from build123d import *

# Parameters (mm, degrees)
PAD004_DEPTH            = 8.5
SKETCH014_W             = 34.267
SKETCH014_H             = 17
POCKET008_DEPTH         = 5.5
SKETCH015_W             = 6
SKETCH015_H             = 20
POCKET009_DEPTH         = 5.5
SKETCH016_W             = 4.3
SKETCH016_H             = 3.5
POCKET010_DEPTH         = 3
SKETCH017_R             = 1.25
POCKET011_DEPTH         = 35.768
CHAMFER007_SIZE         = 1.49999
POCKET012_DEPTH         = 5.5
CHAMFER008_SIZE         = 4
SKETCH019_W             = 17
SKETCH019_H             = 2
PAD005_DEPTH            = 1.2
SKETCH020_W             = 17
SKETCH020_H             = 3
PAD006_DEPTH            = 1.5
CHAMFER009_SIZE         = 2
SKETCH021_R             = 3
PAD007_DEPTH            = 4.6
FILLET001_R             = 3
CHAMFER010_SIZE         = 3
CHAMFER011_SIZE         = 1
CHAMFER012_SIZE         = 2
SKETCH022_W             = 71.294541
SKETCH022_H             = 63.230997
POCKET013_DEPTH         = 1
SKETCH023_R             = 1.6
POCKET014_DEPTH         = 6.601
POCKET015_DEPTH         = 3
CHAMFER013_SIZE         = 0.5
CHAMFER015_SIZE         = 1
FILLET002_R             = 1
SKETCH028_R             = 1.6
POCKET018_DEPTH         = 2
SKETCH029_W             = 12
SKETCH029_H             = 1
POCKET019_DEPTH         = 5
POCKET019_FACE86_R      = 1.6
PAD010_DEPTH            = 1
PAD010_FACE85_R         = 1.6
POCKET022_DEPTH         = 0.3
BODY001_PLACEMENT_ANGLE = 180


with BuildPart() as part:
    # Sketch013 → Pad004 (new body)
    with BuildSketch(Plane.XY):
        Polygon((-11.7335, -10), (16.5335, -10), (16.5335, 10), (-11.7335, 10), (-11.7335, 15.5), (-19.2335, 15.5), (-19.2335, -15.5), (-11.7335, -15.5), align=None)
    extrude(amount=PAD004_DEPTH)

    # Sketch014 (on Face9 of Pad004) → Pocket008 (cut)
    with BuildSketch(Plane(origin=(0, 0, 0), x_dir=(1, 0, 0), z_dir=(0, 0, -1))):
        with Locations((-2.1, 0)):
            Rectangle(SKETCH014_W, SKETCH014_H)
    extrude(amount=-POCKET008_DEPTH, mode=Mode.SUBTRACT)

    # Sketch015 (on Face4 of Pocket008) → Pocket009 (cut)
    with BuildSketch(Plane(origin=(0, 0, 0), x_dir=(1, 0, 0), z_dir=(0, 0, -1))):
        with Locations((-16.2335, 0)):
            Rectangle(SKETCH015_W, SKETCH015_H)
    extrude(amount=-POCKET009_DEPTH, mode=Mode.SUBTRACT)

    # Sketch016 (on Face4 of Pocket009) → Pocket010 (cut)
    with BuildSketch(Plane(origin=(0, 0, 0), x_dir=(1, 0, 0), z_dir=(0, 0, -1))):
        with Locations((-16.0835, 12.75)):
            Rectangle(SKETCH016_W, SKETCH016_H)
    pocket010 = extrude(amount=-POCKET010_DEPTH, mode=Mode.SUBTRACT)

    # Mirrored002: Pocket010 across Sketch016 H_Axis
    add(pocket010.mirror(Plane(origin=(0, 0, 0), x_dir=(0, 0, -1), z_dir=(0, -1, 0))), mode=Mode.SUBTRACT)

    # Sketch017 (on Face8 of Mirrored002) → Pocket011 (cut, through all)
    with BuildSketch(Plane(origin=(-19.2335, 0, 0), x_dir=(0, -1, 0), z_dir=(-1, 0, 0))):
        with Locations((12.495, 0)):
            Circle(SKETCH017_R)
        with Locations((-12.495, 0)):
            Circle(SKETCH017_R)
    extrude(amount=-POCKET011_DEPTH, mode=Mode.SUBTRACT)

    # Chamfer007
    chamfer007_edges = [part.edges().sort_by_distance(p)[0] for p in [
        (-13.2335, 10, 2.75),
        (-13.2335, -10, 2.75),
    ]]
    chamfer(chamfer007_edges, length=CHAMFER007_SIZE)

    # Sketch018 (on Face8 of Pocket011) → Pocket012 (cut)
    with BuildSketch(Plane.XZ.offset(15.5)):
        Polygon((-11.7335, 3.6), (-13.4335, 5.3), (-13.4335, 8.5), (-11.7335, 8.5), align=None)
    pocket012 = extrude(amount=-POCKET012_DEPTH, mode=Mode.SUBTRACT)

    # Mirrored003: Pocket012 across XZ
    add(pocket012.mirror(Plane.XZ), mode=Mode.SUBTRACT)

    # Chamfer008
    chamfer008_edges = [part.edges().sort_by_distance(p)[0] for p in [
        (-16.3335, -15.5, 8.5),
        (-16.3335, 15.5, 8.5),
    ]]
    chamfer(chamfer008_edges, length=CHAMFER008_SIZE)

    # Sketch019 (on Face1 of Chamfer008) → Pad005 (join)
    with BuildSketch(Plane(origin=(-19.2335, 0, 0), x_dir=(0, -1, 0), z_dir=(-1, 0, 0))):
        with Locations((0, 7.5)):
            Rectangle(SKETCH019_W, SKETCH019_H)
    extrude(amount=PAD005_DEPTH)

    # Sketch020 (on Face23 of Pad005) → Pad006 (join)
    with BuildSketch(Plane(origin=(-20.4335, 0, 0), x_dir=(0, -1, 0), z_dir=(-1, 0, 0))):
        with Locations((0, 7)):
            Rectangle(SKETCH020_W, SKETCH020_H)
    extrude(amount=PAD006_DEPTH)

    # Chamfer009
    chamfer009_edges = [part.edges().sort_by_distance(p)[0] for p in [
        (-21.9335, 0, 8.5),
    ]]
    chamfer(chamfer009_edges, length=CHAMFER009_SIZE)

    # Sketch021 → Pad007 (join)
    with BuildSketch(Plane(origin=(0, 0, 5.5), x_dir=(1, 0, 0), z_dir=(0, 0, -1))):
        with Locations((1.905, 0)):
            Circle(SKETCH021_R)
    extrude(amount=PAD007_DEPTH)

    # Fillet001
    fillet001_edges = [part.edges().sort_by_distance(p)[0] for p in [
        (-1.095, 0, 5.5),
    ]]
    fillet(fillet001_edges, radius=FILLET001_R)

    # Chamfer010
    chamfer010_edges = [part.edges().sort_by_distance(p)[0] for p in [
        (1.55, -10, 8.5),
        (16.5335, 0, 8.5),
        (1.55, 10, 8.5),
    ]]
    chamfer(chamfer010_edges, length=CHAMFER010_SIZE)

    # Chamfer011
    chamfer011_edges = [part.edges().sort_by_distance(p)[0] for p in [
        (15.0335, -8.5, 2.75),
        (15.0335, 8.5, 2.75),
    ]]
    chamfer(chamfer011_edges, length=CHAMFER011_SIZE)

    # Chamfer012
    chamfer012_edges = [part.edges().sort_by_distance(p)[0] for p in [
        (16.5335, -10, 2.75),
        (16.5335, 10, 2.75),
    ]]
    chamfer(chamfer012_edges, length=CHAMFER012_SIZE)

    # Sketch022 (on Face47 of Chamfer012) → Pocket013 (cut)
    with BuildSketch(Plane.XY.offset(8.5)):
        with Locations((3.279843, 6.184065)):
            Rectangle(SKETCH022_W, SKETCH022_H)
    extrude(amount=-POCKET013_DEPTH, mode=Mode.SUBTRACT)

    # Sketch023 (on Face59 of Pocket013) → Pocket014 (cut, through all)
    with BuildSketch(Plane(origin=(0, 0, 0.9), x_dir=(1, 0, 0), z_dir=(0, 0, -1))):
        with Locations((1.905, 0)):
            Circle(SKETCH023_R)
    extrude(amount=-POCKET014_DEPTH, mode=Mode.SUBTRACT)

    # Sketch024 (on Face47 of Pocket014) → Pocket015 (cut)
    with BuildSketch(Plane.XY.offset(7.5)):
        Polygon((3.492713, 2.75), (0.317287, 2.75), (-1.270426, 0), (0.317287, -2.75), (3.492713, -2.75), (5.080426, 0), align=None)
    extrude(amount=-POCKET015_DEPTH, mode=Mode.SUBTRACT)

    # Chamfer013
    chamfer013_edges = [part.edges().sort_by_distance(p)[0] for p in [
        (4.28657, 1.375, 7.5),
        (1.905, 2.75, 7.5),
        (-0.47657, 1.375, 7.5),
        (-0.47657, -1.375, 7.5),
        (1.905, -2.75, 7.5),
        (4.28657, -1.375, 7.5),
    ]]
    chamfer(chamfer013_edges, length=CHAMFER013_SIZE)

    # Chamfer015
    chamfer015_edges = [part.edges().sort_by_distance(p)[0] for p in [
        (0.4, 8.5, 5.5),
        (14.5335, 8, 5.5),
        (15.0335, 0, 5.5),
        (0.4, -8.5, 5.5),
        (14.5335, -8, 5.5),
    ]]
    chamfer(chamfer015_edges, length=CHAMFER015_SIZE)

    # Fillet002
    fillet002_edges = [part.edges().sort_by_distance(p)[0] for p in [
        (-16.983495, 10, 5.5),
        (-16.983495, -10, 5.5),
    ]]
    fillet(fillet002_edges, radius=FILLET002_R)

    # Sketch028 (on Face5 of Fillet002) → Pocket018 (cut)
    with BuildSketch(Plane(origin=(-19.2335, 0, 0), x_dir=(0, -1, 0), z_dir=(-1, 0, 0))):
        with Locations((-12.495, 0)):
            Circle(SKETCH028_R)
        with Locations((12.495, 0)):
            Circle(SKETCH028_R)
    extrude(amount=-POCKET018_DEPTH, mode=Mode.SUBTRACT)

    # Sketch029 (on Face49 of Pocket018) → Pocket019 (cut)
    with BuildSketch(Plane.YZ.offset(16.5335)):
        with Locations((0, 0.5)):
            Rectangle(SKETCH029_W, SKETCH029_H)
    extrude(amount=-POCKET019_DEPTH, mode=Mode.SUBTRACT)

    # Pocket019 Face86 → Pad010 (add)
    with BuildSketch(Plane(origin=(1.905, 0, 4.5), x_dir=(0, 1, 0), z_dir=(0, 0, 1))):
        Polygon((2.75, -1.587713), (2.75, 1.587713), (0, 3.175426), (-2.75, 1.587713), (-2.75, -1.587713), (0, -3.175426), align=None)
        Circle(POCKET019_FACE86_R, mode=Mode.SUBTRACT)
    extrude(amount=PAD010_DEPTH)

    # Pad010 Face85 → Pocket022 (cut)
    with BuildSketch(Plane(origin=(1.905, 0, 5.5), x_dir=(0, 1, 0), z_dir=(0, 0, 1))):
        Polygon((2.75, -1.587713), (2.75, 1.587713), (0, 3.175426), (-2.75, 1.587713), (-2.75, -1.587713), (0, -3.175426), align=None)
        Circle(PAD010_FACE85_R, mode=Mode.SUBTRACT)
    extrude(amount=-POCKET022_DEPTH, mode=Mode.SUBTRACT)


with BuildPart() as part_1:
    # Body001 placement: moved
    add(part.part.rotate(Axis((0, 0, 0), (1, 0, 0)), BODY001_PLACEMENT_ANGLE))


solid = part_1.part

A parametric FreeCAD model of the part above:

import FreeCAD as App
import Part
import Sketcher

V = App.Vector
Q = App.Units.Quantity


def edges_at(feature, points):
    """Names of the edges that pass closest to the given points."""
    edges = feature.Shape.Edges
    near = lambda p: min(range(len(edges)), key=lambda i: edges[i].distToShape(Part.Vertex(*p))[0])
    return sorted({f"Edge{near(p) + 1}" for p in points})

doc = App.newDocument("Part")
params = doc.addObject("Spreadsheet::Sheet", "Params")
for row, (alias, value) in enumerate([
    ("sketch1_height", "20 mm"),
    ("sketch1_height2", "31 mm"),
    ("sketch1_width", "7.5 mm"),
    ("pad1_length", "8.5 mm"),
    ("sketch2_height", "17 mm"),
    ("pocket1_length", "5.5 mm"),
    ("sketch3_width", "6 mm"),
    ("sketch3_height", "20 mm"),
    ("pocket2_length", "5.5 mm"),
    ("sketch4_width", "4.3 mm"),
    ("sketch4_height", "3.5 mm"),
    ("pocket3_length", "3 mm"),
    ("sketch5_diameter", "2.5 mm"),
    ("chamfer_size", "1.49999 mm"),
    ("sketch6_width", "1.7 mm"),
    ("sketch6_height", "4.9 mm"),
    ("pocket5_length", "5.5 mm"),
    ("chamfer2_size", "4 mm"),
    ("sketch7_width", "17 mm"),
    ("sketch7_height", "2 mm"),
    ("pad2_length", "1.2 mm"),
    ("sketch8_width", "17 mm"),
    ("sketch8_height", "3 mm"),
    ("pad3_length", "1.5 mm"),
    ("chamfer3_size", "2 mm"),
    ("sketch9_diameter", "6 mm"),
    ("pad4_length", "4.6 mm"),
    ("fillet_radius", "3 mm"),
    ("chamfer4_size", "3 mm"),
    ("chamfer5_size", "1 mm"),
    ("chamfer6_size", "2 mm"),
    ("pocket6_length", "1 mm"),
    ("sketch11_diameter", "3.2 mm"),
    ("pocket8_length", "3 mm"),
    ("chamfer7_size", "0.5 mm"),
    ("chamfer8_size", "1 mm"),
    ("fillet2_radius", "1 mm"),
    ("sketch13_diameter", "3.2 mm"),
    ("pocket9_length", "2 mm"),
    ("sketch14_width", "12 mm"),
    ("sketch14_height", "1 mm"),
    ("pocket10_length", "5 mm"),
    ("sketch15_diameter", "3.2 mm"),
    ("pad5_length", "1 mm"),
    ("sketch16_diameter", "3.2 mm"),
    ("pocket11_length", "0.3 mm"),
], start=1):
    params.set(f"A{row}", alias)
    params.set(f"B{row}", "=" + value)
    params.setAlias(f"B{row}", alias)

body = doc.addObject("PartDesign::Body", "Body")

sketch1 = doc.addObject("Sketcher::SketchObject", "Sketch")
body.addObject(sketch1)
sketch1.AttachmentSupport = (doc.XY_Plane, [""])
sketch1.MapMode = "FlatFace"
sketch1.addGeometry(Part.LineSegment(V(-12, -10, 0), V(17, -10, 0)), False)
sketch1.addGeometry(Part.LineSegment(V(17, -10, 0), V(17, 10, 0)), False)
sketch1.addGeometry(Part.LineSegment(V(17, 10, 0), V(-12, 10, 0)), False)
sketch1.addGeometry(Part.LineSegment(V(-12, 10, 0), V(-12, 16, 0)), False)
sketch1.addGeometry(Part.LineSegment(V(-12, 16, 0), V(-19, 16, 0)), False)
sketch1.addGeometry(Part.LineSegment(V(-19, 16, 0), V(-19, -16, 0)), False)
sketch1.addGeometry(Part.LineSegment(V(-19, -16, 0), V(-12, -16, 0)), False)
sketch1.addGeometry(Part.LineSegment(V(-12, -16, 0), V(-12, -10, 0)), False)
sketch1.addConstraint(Sketcher.Constraint("Coincident", 0, 2, 1, 1))
sketch1.addConstraint(Sketcher.Constraint("Coincident", 1, 2, 2, 1))
sketch1.addConstraint(Sketcher.Constraint("Coincident", 2, 2, 3, 1))
sketch1.addConstraint(Sketcher.Constraint("Coincident", 3, 2, 4, 1))
sketch1.addConstraint(Sketcher.Constraint("Coincident", 4, 2, 5, 1))
sketch1.addConstraint(Sketcher.Constraint("Coincident", 5, 2, 6, 1))
sketch1.addConstraint(Sketcher.Constraint("Coincident", 6, 2, 7, 1))
sketch1.addConstraint(Sketcher.Constraint("Coincident", 7, 2, 0, 1))
sketch1.addConstraint(Sketcher.Constraint("Horizontal", 0))
sketch1.addConstraint(Sketcher.Constraint("Vertical", 1))
sketch1.addConstraint(Sketcher.Constraint("Horizontal", 2))
sketch1.addConstraint(Sketcher.Constraint("Vertical", 3))
sketch1.addConstraint(Sketcher.Constraint("Horizontal", 4))
sketch1.addConstraint(Sketcher.Constraint("Vertical", 5))
sketch1.addConstraint(Sketcher.Constraint("Horizontal", 6))
sketch1.addConstraint(Sketcher.Constraint("Vertical", 7))
sketch1.addConstraint(Sketcher.Constraint("Symmetric", 3, 2, 6, 2, -1))
sketch1.addConstraint(Sketcher.Constraint("Equal", 3, 7))
sketch1.addConstraint(Sketcher.Constraint("DistanceY", 1, 1, 1, 2, Q("20 mm")))
sketch1.addConstraint(Sketcher.Constraint("DistanceY", 5, 2, 5, 1, Q("31 mm")))
sketch1.addConstraint(Sketcher.Constraint("DistanceX", 4, 2, 4, 1, Q("7.5 mm")))
sketch1.addConstraint(Sketcher.Constraint("DistanceX", 0, 1, 0, 2, Q("28.267 mm")))
sketch1.addConstraint(Sketcher.Constraint("DistanceX", -1, 1, 0, 2, Q("16.5335 mm")))
sketch1.setExpression("Constraints[18]", "Params.sketch1_height")
sketch1.setExpression("Constraints[19]", "Params.sketch1_height2")
sketch1.setExpression("Constraints[20]", "Params.sketch1_width")
pad1 = doc.addObject("PartDesign::Pad", "Pad")
body.addObject(pad1)
pad1.Profile = sketch1
pad1.setExpression("Length", "Params.pad1_length")

sketch2 = doc.addObject("Sketcher::SketchObject", "Sketch001")
body.addObject(sketch2)
sketch2.AttachmentSupport = (doc.XY_Plane, [""])
sketch2.MapMode = "FlatFace"
sketch2.addGeometry(Part.LineSegment(V(-19, -8, 0), V(-19, 8, 0)), False)
sketch2.addGeometry(Part.LineSegment(V(-19, 8, 0), V(15, 8, 0)), False)
sketch2.addGeometry(Part.LineSegment(V(15, 8, 0), V(15, -8, 0)), False)
sketch2.addGeometry(Part.LineSegment(V(15, -8, 0), V(-19, -8, 0)), False)
sketch2.addConstraint(Sketcher.Constraint("Coincident", 0, 2, 1, 1))
sketch2.addConstraint(Sketcher.Constraint("Coincident", 1, 2, 2, 1))
sketch2.addConstraint(Sketcher.Constraint("Coincident", 2, 2, 3, 1))
sketch2.addConstraint(Sketcher.Constraint("Coincident", 3, 2, 0, 1))
sketch2.addConstraint(Sketcher.Constraint("Vertical", 0))
sketch2.addConstraint(Sketcher.Constraint("Horizontal", 1))
sketch2.addConstraint(Sketcher.Constraint("Vertical", 2))
sketch2.addConstraint(Sketcher.Constraint("Horizontal", 3))
sketch2.addConstraint(Sketcher.Constraint("DistanceY", 0, 1, 0, 2, Q("17 mm")))
sketch2.addConstraint(Sketcher.Constraint("DistanceY", -1, 1, 0, 2, Q("8.5 mm")))
sketch2.addConstraint(Sketcher.Constraint("DistanceX", 1, 1, 1, 2, Q("34.267 mm")))
sketch2.addConstraint(Sketcher.Constraint("DistanceX", 0, 2, -1, 1, Q("19.2335 mm")))
sketch2.setExpression("Constraints[8]", "Params.sketch2_height")
pocket1 = doc.addObject("PartDesign::Pocket", "Pocket")
body.addObject(pocket1)
pocket1.Profile = sketch2
pocket1.setExpression("Length", "Params.pocket1_length")
pocket1.Reversed = True

sketch3 = doc.addObject("Sketcher::SketchObject", "Sketch002")
body.addObject(sketch3)
sketch3.AttachmentSupport = (doc.XY_Plane, [""])
sketch3.MapMode = "FlatFace"
sketch3.addGeometry(Part.LineSegment(V(-19, -10, 0), V(-19, 10, 0)), False)
sketch3.addGeometry(Part.LineSegment(V(-19, 10, 0), V(-13, 10, 0)), False)
sketch3.addGeometry(Part.LineSegment(V(-13, 10, 0), V(-13, -10, 0)), False)
sketch3.addGeometry(Part.LineSegment(V(-13, -10, 0), V(-19, -10, 0)), False)
sketch3.addConstraint(Sketcher.Constraint("Coincident", 0, 2, 1, 1))
sketch3.addConstraint(Sketcher.Constraint("Coincident", 1, 2, 2, 1))
sketch3.addConstraint(Sketcher.Constraint("Coincident", 2, 2, 3, 1))
sketch3.addConstraint(Sketcher.Constraint("Coincident", 3, 2, 0, 1))
sketch3.addConstraint(Sketcher.Constraint("Vertical", 0))
sketch3.addConstraint(Sketcher.Constraint("Horizontal", 1))
sketch3.addConstraint(Sketcher.Constraint("Vertical", 2))
sketch3.addConstraint(Sketcher.Constraint("Horizontal", 3))
sketch3.addConstraint(Sketcher.Constraint("DistanceX", 1, 1, 1, 2, Q("6 mm")))
sketch3.addConstraint(Sketcher.Constraint("DistanceY", 0, 1, 0, 2, Q("20 mm")))
sketch3.addConstraint(Sketcher.Constraint("DistanceY", -1, 1, 0, 2, Q("10 mm")))
sketch3.addConstraint(Sketcher.Constraint("DistanceX", 0, 2, -1, 1, Q("19.2335 mm")))
sketch3.setExpression("Constraints[8]", "Params.sketch3_width")
sketch3.setExpression("Constraints[9]", "Params.sketch3_height")
pocket2 = doc.addObject("PartDesign::Pocket", "Pocket001")
body.addObject(pocket2)
pocket2.Profile = sketch3
pocket2.setExpression("Length", "Params.pocket2_length")
pocket2.Reversed = True

sketch4 = doc.addObject("Sketcher::SketchObject", "Sketch003")
body.addObject(sketch4)
sketch4.AttachmentSupport = (doc.XY_Plane, [""])
sketch4.MapMode = "FlatFace"
sketch4.addGeometry(Part.LineSegment(V(-18.2, -14.5, 0), V(-18.2, -11, 0)), False)
sketch4.addGeometry(Part.LineSegment(V(-18.2, -11, 0), V(-13.9, -11, 0)), False)
sketch4.addGeometry(Part.LineSegment(V(-13.9, -11, 0), V(-13.9, -14.5, 0)), False)
sketch4.addGeometry(Part.LineSegment(V(-13.9, -14.5, 0), V(-18.2, -14.5, 0)), False)
sketch4.addConstraint(Sketcher.Constraint("Coincident", 0, 2, 1, 1))
sketch4.addConstraint(Sketcher.Constraint("Coincident", 1, 2, 2, 1))
sketch4.addConstraint(Sketcher.Constraint("Coincident", 2, 2, 3, 1))
sketch4.addConstraint(Sketcher.Constraint("Coincident", 3, 2, 0, 1))
sketch4.addConstraint(Sketcher.Constraint("Vertical", 0))
sketch4.addConstraint(Sketcher.Constraint("Horizontal", 1))
sketch4.addConstraint(Sketcher.Constraint("Vertical", 2))
sketch4.addConstraint(Sketcher.Constraint("Horizontal", 3))
sketch4.addConstraint(Sketcher.Constraint("DistanceX", 1, 1, 1, 2, Q("4.3 mm")))
sketch4.addConstraint(Sketcher.Constraint("DistanceY", 0, 1, 0, 2, Q("3.5 mm")))
sketch4.addConstraint(Sketcher.Constraint("DistanceY", 0, 2, -1, 1, Q("11 mm")))
sketch4.addConstraint(Sketcher.Constraint("DistanceX", 0, 2, -1, 1, Q("18.2335 mm")))
sketch4.setExpression("Constraints[8]", "Params.sketch4_width")
sketch4.setExpression("Constraints[9]", "Params.sketch4_height")
pocket3 = doc.addObject("PartDesign::Pocket", "Pocket002")
body.addObject(pocket3)
pocket3.Profile = sketch4
pocket3.setExpression("Length", "Params.pocket3_length")
pocket3.Reversed = True
doc.recompute()

mirrored = doc.addObject("PartDesign::Mirrored", "Mirrored")
body.addObject(mirrored)
mirrored.Originals = [pocket3]
mirrored.MirrorPlane = (doc.XZ_Plane, [""])
body.Tip = mirrored

sketch5 = doc.addObject("Sketcher::SketchObject", "Sketch004")
body.addObject(sketch5)
sketch5.AttachmentSupport = (doc.YZ_Plane, [""])
sketch5.MapMode = "FlatFace"
sketch5.AttachmentOffset = App.Placement(V(0, 0, -19.2335), App.Rotation())
sketch5.addGeometry(Part.Circle(V(-12.5, 0, 0), V(0, 0, 1), 1.2), False)
sketch5.addGeometry(Part.Circle(V(12.5, 0, 0), V(0, 0, 1), 1.2), False)
sketch5.addConstraint(Sketcher.Constraint("Equal", 0, 1))
sketch5.addConstraint(Sketcher.Constraint("Symmetric", 0, 3, 1, 3, -1, 1))
sketch5.addConstraint(Sketcher.Constraint("PointOnObject", 0, 3, -1))
sketch5.addConstraint(Sketcher.Constraint("Diameter", 0, Q("2.5 mm")))
sketch5.addConstraint(Sketcher.Constraint("DistanceX", 0, 3, 1, 3, Q("24.99 mm")))
sketch5.setExpression("Constraints[3]", "Params.sketch5_diameter")
pocket4 = doc.addObject("PartDesign::Pocket", "Pocket003")
body.addObject(pocket4)
pocket4.Profile = sketch5
pocket4.Type = "ThroughAll"
pocket4.Reversed = True
doc.recompute()

chamfer = doc.addObject("PartDesign::Chamfer", "Chamfer")
body.addObject(chamfer)
chamfer.Base = (pocket4, edges_at(pocket4, [(-13.233, 10, 2.75), (-13.233, -10, 2.75)]))
chamfer.setExpression("Size", "Params.chamfer_size")

sketch6 = doc.addObject("Sketcher::SketchObject", "Sketch005")
body.addObject(sketch6)
sketch6.AttachmentSupport = (doc.XZ_Plane, [""])
sketch6.MapMode = "FlatFace"
sketch6.AttachmentOffset = App.Placement(V(0, 0, 15.5), App.Rotation())
sketch6.addGeometry(Part.LineSegment(V(-13.4, 5.3, 0), V(-11.7, 3.6, 0)), False)
sketch6.addGeometry(Part.LineSegment(V(-11.7, 3.6, 0), V(-11.7, 8.5, 0)), False)
sketch6.addGeometry(Part.LineSegment(V(-11.7, 8.5, 0), V(-13.4, 8.5, 0)), False)
sketch6.addGeometry(Part.LineSegment(V(-13.4, 8.5, 0), V(-13.4, 5.3, 0)), False)
sketch6.addConstraint(Sketcher.Constraint("Coincident", 0, 2, 1, 1))
sketch6.addConstraint(Sketcher.Constraint("Coincident", 1, 2, 2, 1))
sketch6.addConstraint(Sketcher.Constraint("Coincident", 2, 2, 3, 1))
sketch6.addConstraint(Sketcher.Constraint("Coincident", 3, 2, 0, 1))
sketch6.addConstraint(Sketcher.Constraint("Vertical", 1))
sketch6.addConstraint(Sketcher.Constraint("Horizontal", 2))
sketch6.addConstraint(Sketcher.Constraint("Vertical", 3))
sketch6.addConstraint(Sketcher.Constraint("Angle", 0, Q("-45 deg")))
sketch6.addConstraint(Sketcher.Constraint("DistanceX", 2, 2, 2, 1, Q("1.7 mm")))
sketch6.addConstraint(Sketcher.Constraint("DistanceY", 1, 1, 1, 2, Q("4.9 mm")))
sketch6.addConstraint(Sketcher.Constraint("DistanceY", -1, 1, 0, 2, Q("3.6 mm")))
sketch6.addConstraint(Sketcher.Constraint("DistanceX", 0, 2, -1, 1, Q("11.7335 mm")))
sketch6.setExpression("Constraints[8]", "Params.sketch6_width")
sketch6.setExpression("Constraints[9]", "Params.sketch6_height")
pocket5 = doc.addObject("PartDesign::Pocket", "Pocket004")
body.addObject(pocket5)
pocket5.Profile = sketch6
pocket5.setExpression("Length", "Params.pocket5_length")
doc.recompute()

mirrored2 = doc.addObject("PartDesign::Mirrored", "Mirrored001")
body.addObject(mirrored2)
mirrored2.Originals = [pocket5]
mirrored2.MirrorPlane = (doc.XZ_Plane, [""])
body.Tip = mirrored2
doc.recompute()

chamfer2 = doc.addObject("PartDesign::Chamfer", "Chamfer001")
body.addObject(chamfer2)
chamfer2.Base = (mirrored2, edges_at(mirrored2, [(-16.334, -15.5, 8.5), (-16.334, 15.5, 8.5)]))
chamfer2.setExpression("Size", "Params.chamfer2_size")

sketch7 = doc.addObject("Sketcher::SketchObject", "Sketch006")
body.addObject(sketch7)
sketch7.AttachmentSupport = (doc.YZ_Plane, [""])
sketch7.MapMode = "FlatFace"
sketch7.AttachmentOffset = App.Placement(V(0, 0, -19.2335), App.Rotation())
sketch7.addGeometry(Part.LineSegment(V(8.5, 8.5, 0), V(8.5, 6.5, 0)), False)
sketch7.addGeometry(Part.LineSegment(V(8.5, 6.5, 0), V(-8.5, 6.5, 0)), False)
sketch7.addGeometry(Part.LineSegment(V(-8.5, 6.5, 0), V(-8.5, 8.5, 0)), False)
sketch7.addGeometry(Part.LineSegment(V(-8.5, 8.5, 0), V(8.5, 8.5, 0)), False)
sketch7.addConstraint(Sketcher.Constraint("Coincident", 0, 2, 1, 1))
sketch7.addConstraint(Sketcher.Constraint("Coincident", 1, 2, 2, 1))
sketch7.addConstraint(Sketcher.Constraint("Coincident", 2, 2, 3, 1))
sketch7.addConstraint(Sketcher.Constraint("Coincident", 3, 2, 0, 1))
sketch7.addConstraint(Sketcher.Constraint("Vertical", 0))
sketch7.addConstraint(Sketcher.Constraint("Horizontal", 1))
sketch7.addConstraint(Sketcher.Constraint("Vertical", 2))
sketch7.addConstraint(Sketcher.Constraint("Horizontal", 3))
sketch7.addConstraint(Sketcher.Constraint("DistanceX", 1, 2, 1, 1, Q("17 mm")))
sketch7.addConstraint(Sketcher.Constraint("DistanceY", 0, 2, 0, 1, Q("2 mm")))
sketch7.addConstraint(Sketcher.Constraint("DistanceX", -1, 1, 0, 2, Q("8.5 mm")))
sketch7.addConstraint(Sketcher.Constraint("DistanceY", -1, 1, 0, 2, Q("6.5 mm")))
sketch7.setExpression("Constraints[8]", "Params.sketch7_width")
sketch7.setExpression("Constraints[9]", "Params.sketch7_height")
pad2 = doc.addObject("PartDesign::Pad", "Pad001")
body.addObject(pad2)
pad2.Profile = sketch7
pad2.setExpression("Length", "Params.pad2_length")
pad2.Reversed = True

sketch8 = doc.addObject("Sketcher::SketchObject", "Sketch007")
body.addObject(sketch8)
sketch8.AttachmentSupport = (doc.YZ_Plane, [""])
sketch8.MapMode = "FlatFace"
sketch8.AttachmentOffset = App.Placement(V(0, 0, -20.4335), App.Rotation())
sketch8.addGeometry(Part.LineSegment(V(8.5, 8.5, 0), V(8.5, 5.5, 0)), False)
sketch8.addGeometry(Part.LineSegment(V(8.5, 5.5, 0), V(-8.5, 5.5, 0)), False)
sketch8.addGeometry(Part.LineSegment(V(-8.5, 5.5, 0), V(-8.5, 8.5, 0)), False)
sketch8.addGeometry(Part.LineSegment(V(-8.5, 8.5, 0), V(8.5, 8.5, 0)), False)
sketch8.addConstraint(Sketcher.Constraint("Coincident", 0, 2, 1, 1))
sketch8.addConstraint(Sketcher.Constraint("Coincident", 1, 2, 2, 1))
sketch8.addConstraint(Sketcher.Constraint("Coincident", 2, 2, 3, 1))
sketch8.addConstraint(Sketcher.Constraint("Coincident", 3, 2, 0, 1))
sketch8.addConstraint(Sketcher.Constraint("Vertical", 0))
sketch8.addConstraint(Sketcher.Constraint("Horizontal", 1))
sketch8.addConstraint(Sketcher.Constraint("Vertical", 2))
sketch8.addConstraint(Sketcher.Constraint("Horizontal", 3))
sketch8.addConstraint(Sketcher.Constraint("DistanceX", 1, 2, 1, 1, Q("17 mm")))
sketch8.addConstraint(Sketcher.Constraint("DistanceY", 0, 2, 0, 1, Q("3 mm")))
sketch8.addConstraint(Sketcher.Constraint("DistanceX", -1, 1, 0, 2, Q("8.5 mm")))
sketch8.addConstraint(Sketcher.Constraint("DistanceY", -1, 1, 0, 2, Q("5.5 mm")))
sketch8.setExpression("Constraints[8]", "Params.sketch8_width")
sketch8.setExpression("Constraints[9]", "Params.sketch8_height")
pad3 = doc.addObject("PartDesign::Pad", "Pad002")
body.addObject(pad3)
pad3.Profile = sketch8
pad3.setExpression("Length", "Params.pad3_length")
pad3.Reversed = True
doc.recompute()

chamfer3 = doc.addObject("PartDesign::Chamfer", "Chamfer002")
body.addObject(chamfer3)
chamfer3.Base = (pad3, edges_at(pad3, [(-21.933, 0, 8.5)]))
chamfer3.setExpression("Size", "Params.chamfer3_size")

sketch9 = doc.addObject("Sketcher::SketchObject", "Sketch008")
body.addObject(sketch9)
sketch9.AttachmentSupport = (doc.XY_Plane, [""])
sketch9.MapMode = "FlatFace"
sketch9.AttachmentOffset = App.Placement(V(0, 0, 5.5), App.Rotation())
sketch9.addGeometry(Part.Circle(V(1.9, 0, 0), V(0, 0, 1), 3), False)
sketch9.addConstraint(Sketcher.Constraint("PointOnObject", 0, 3, -1))
sketch9.addConstraint(Sketcher.Constraint("Diameter", 0, Q("6 mm")))
sketch9.addConstraint(Sketcher.Constraint("DistanceX", -1, 1, 0, 3, Q("1.905 mm")))
sketch9.setExpression("Constraints[1]", "Params.sketch9_diameter")
pad4 = doc.addObject("PartDesign::Pad", "Pad003")
body.addObject(pad4)
pad4.Profile = sketch9
pad4.setExpression("Length", "Params.pad4_length")
pad4.Reversed = True
doc.recompute()

fillet = doc.addObject("PartDesign::Fillet", "Fillet")
body.addObject(fillet)
fillet.Base = (pad4, edges_at(pad4, [(-1.095, 0, 5.5)]))
fillet.setExpression("Radius", "Params.fillet_radius")
doc.recompute()

chamfer4 = doc.addObject("PartDesign::Chamfer", "Chamfer003")
body.addObject(chamfer4)
chamfer4.Base = (fillet, edges_at(fillet, [(1.55, -10, 8.5), (16.534, 0, 8.5), (1.55, 10, 8.5)]))
chamfer4.setExpression("Size", "Params.chamfer4_size")
doc.recompute()

chamfer5 = doc.addObject("PartDesign::Chamfer", "Chamfer004")
body.addObject(chamfer5)
chamfer5.Base = (chamfer4, edges_at(chamfer4, [(15.034, -8.5, 2.75), (15.034, 8.5, 2.75)]))
chamfer5.setExpression("Size", "Params.chamfer5_size")
doc.recompute()

chamfer6 = doc.addObject("PartDesign::Chamfer", "Chamfer005")
body.addObject(chamfer6)
chamfer6.Base = (chamfer5, edges_at(chamfer5, [(16.534, -10, 2.75), (16.534, 10, 2.75)]))
chamfer6.setExpression("Size", "Params.chamfer6_size")

sketch10 = doc.addObject("Sketcher::SketchObject", "Sketch009")
body.addObject(sketch10)
sketch10.AttachmentSupport = (doc.XY_Plane, [""])
sketch10.MapMode = "FlatFace"
sketch10.AttachmentOffset = App.Placement(V(0, 0, 8.5), App.Rotation())
sketch10.addGeometry(Part.LineSegment(V(-32, 38, 0), V(-32, -25, 0)), False)
sketch10.addGeometry(Part.LineSegment(V(-32, -25, 0), V(39, -25, 0)), False)
sketch10.addGeometry(Part.LineSegment(V(39, -25, 0), V(39, 38, 0)), False)
sketch10.addGeometry(Part.LineSegment(V(39, 38, 0), V(-32, 38, 0)), False)
sketch10.addConstraint(Sketcher.Constraint("Coincident", 0, 2, 1, 1))
sketch10.addConstraint(Sketcher.Constraint("Coincident", 1, 2, 2, 1))
sketch10.addConstraint(Sketcher.Constraint("Coincident", 2, 2, 3, 1))
sketch10.addConstraint(Sketcher.Constraint("Coincident", 3, 2, 0, 1))
sketch10.addConstraint(Sketcher.Constraint("Vertical", 0))
sketch10.addConstraint(Sketcher.Constraint("Horizontal", 1))
sketch10.addConstraint(Sketcher.Constraint("Vertical", 2))
sketch10.addConstraint(Sketcher.Constraint("Horizontal", 3))
sketch10.addConstraint(Sketcher.Constraint("DistanceX", 1, 1, 1, 2, Q("71.294541 mm")))
sketch10.addConstraint(Sketcher.Constraint("DistanceY", 0, 2, 0, 1, Q("63.230997 mm")))
sketch10.addConstraint(Sketcher.Constraint("DistanceX", 0, 2, -1, 1, Q("32.367427 mm")))
sketch10.addConstraint(Sketcher.Constraint("DistanceY", 0, 2, -1, 1, Q("25.431434 mm")))
pocket6 = doc.addObject("PartDesign::Pocket", "Pocket005")
body.addObject(pocket6)
pocket6.Profile = sketch10
pocket6.setExpression("Length", "Params.pocket6_length")

sketch11 = doc.addObject("Sketcher::SketchObject", "Sketch010")
body.addObject(sketch11)
sketch11.AttachmentSupport = (doc.XY_Plane, [""])
sketch11.MapMode = "FlatFace"
sketch11.AttachmentOffset = App.Placement(V(0, 0, 0.9), App.Rotation())
sketch11.addGeometry(Part.Circle(V(1.9, 0, 0), V(0, 0, 1), 1.6), False)
sketch11.addConstraint(Sketcher.Constraint("PointOnObject", 0, 3, -1))
sketch11.addConstraint(Sketcher.Constraint("Diameter", 0, Q("3.2 mm")))
sketch11.addConstraint(Sketcher.Constraint("DistanceX", -1, 1, 0, 3, Q("1.905 mm")))
sketch11.setExpression("Constraints[1]", "Params.sketch11_diameter")
pocket7 = doc.addObject("PartDesign::Pocket", "Pocket006")
body.addObject(pocket7)
pocket7.Profile = sketch11
pocket7.Type = "ThroughAll"
pocket7.Reversed = True

sketch12 = doc.addObject("Sketcher::SketchObject", "Sketch011")
body.addObject(sketch12)
sketch12.AttachmentSupport = (doc.XY_Plane, [""])
sketch12.MapMode = "FlatFace"
sketch12.AttachmentOffset = App.Placement(V(0, 0, 7.5), App.Rotation())
sketch12.addGeometry(Part.LineSegment(V(3.5, 2.8, 0), V(0.3, 2.8, 0)), False)
sketch12.addGeometry(Part.LineSegment(V(0.3, 2.8, 0), V(-1.3, 0, 0)), False)
sketch12.addGeometry(Part.LineSegment(V(-1.3, 0, 0), V(0.3, -2.8, 0)), False)
sketch12.addGeometry(Part.LineSegment(V(0.3, -2.8, 0), V(3.5, -2.8, 0)), False)
sketch12.addGeometry(Part.LineSegment(V(3.5, -2.8, 0), V(5.1, 0, 0)), False)
sketch12.addGeometry(Part.LineSegment(V(5.1, 0, 0), V(3.5, 2.8, 0)), False)
sketch12.addConstraint(Sketcher.Constraint("Coincident", 0, 2, 1, 1))
sketch12.addConstraint(Sketcher.Constraint("Coincident", 1, 2, 2, 1))
sketch12.addConstraint(Sketcher.Constraint("Coincident", 2, 2, 3, 1))
sketch12.addConstraint(Sketcher.Constraint("Coincident", 3, 2, 4, 1))
sketch12.addConstraint(Sketcher.Constraint("Coincident", 4, 2, 5, 1))
sketch12.addConstraint(Sketcher.Constraint("Coincident", 5, 2, 0, 1))
sketch12.addConstraint(Sketcher.Constraint("Horizontal", 0))
sketch12.addConstraint(Sketcher.Constraint("Horizontal", 3))
sketch12.addConstraint(Sketcher.Constraint("Symmetric", 0, 2, 2, 2, -1))
sketch12.addConstraint(Sketcher.Constraint("PointOnObject", 1, 2, -1))
sketch12.addConstraint(Sketcher.Constraint("PointOnObject", 4, 2, -1))
sketch12.addConstraint(Sketcher.Constraint("Parallel", 1, 4))
sketch12.addConstraint(Sketcher.Constraint("Parallel", 2, 5))
sketch12.addConstraint(Sketcher.Constraint("Angle", 1, Q("-119.999996 deg")))
sketch12.addConstraint(Sketcher.Constraint("DistanceY", 2, 2, 0, 2, Q("5.5 mm")))
sketch12.addConstraint(Sketcher.Constraint("DistanceX", 0, 2, 0, 1, Q("3.175426 mm")))
sketch12.addConstraint(Sketcher.Constraint("DistanceX", -1, 1, 0, 2, Q("0.317287 mm")))
pocket8 = doc.addObject("PartDesign::Pocket", "Pocket007")
body.addObject(pocket8)
pocket8.Profile = sketch12
pocket8.setExpression("Length", "Params.pocket8_length")
doc.recompute()

chamfer7 = doc.addObject("PartDesign::Chamfer", "Chamfer006")
body.addObject(chamfer7)
chamfer7.Base = (pocket8, edges_at(pocket8, [
    (4.287, 1.375, 7.5),
    (1.905, 2.75, 7.5),
    (-0.477, 1.375, 7.5),
    (-0.477, -1.375, 7.5),
    (1.905, -2.75, 7.5),
    (4.287, -1.375, 7.5),
]))
chamfer7.setExpression("Size", "Params.chamfer7_size")
doc.recompute()

chamfer8 = doc.addObject("PartDesign::Chamfer", "Chamfer007")
body.addObject(chamfer8)
chamfer8.Base = (chamfer7, edges_at(chamfer7, [
    (0.4, 8.5, 5.5),
    (14.534, 8, 5.5),
    (15.034, 0, 5.5),
    (0.4, -8.5, 5.5),
    (14.534, -8, 5.5),
]))
chamfer8.setExpression("Size", "Params.chamfer8_size")
doc.recompute()

fillet2 = doc.addObject("PartDesign::Fillet", "Fillet001")
body.addObject(fillet2)
fillet2.Base = (chamfer8, edges_at(chamfer8, [(-16.983, 10, 5.5), (-16.983, -10, 5.5)]))
fillet2.setExpression("Radius", "Params.fillet2_radius")

sketch13 = doc.addObject("Sketcher::SketchObject", "Sketch012")
body.addObject(sketch13)
sketch13.AttachmentSupport = (doc.YZ_Plane, [""])
sketch13.MapMode = "FlatFace"
sketch13.AttachmentOffset = App.Placement(V(0, 0, -19.2335), App.Rotation())
sketch13.addGeometry(Part.Circle(V(12.5, 0, 0), V(0, 0, 1), 1.6), False)
sketch13.addGeometry(Part.Circle(V(-12.5, 0, 0), V(0, 0, 1), 1.6), False)
sketch13.addConstraint(Sketcher.Constraint("Equal", 0, 1))
sketch13.addConstraint(Sketcher.Constraint("Symmetric", 0, 3, 1, 3, -1, 1))
sketch13.addConstraint(Sketcher.Constraint("PointOnObject", 0, 3, -1))
sketch13.addConstraint(Sketcher.Constraint("Diameter", 0, Q("3.2 mm")))
sketch13.addConstraint(Sketcher.Constraint("DistanceX", 1, 3, 0, 3, Q("24.99 mm")))
sketch13.setExpression("Constraints[3]", "Params.sketch13_diameter")
pocket9 = doc.addObject("PartDesign::Pocket", "Pocket008")
body.addObject(pocket9)
pocket9.Profile = sketch13
pocket9.setExpression("Length", "Params.pocket9_length")
pocket9.Reversed = True

sketch14 = doc.addObject("Sketcher::SketchObject", "Sketch013")
body.addObject(sketch14)
sketch14.AttachmentSupport = (doc.YZ_Plane, [""])
sketch14.MapMode = "FlatFace"
sketch14.AttachmentOffset = App.Placement(V(0, 0, 16.5335), App.Rotation())
sketch14.addGeometry(Part.LineSegment(V(-6, 1, 0), V(-6, 0, 0)), False)
sketch14.addGeometry(Part.LineSegment(V(-6, 0, 0), V(6, 0, 0)), False)
sketch14.addGeometry(Part.LineSegment(V(6, 0, 0), V(6, 1, 0)), False)
sketch14.addGeometry(Part.LineSegment(V(6, 1, 0), V(-6, 1, 0)), False)
sketch14.addConstraint(Sketcher.Constraint("Coincident", 0, 2, 1, 1))
sketch14.addConstraint(Sketcher.Constraint("Coincident", 1, 2, 2, 1))
sketch14.addConstraint(Sketcher.Constraint("Coincident", 2, 2, 3, 1))
sketch14.addConstraint(Sketcher.Constraint("Coincident", 3, 2, 0, 1))
sketch14.addConstraint(Sketcher.Constraint("Vertical", 0))
sketch14.addConstraint(Sketcher.Constraint("Horizontal", 1))
sketch14.addConstraint(Sketcher.Constraint("Vertical", 2))
sketch14.addConstraint(Sketcher.Constraint("Horizontal", 3))
sketch14.addConstraint(Sketcher.Constraint("Symmetric", 0, 2, 1, 2, -1, 1))
sketch14.addConstraint(Sketcher.Constraint("DistanceX", 1, 1, 1, 2, Q("12 mm")))
sketch14.addConstraint(Sketcher.Constraint("DistanceY", 0, 2, 0, 1, Q("1 mm")))
sketch14.setExpression("Constraints[9]", "Params.sketch14_width")
sketch14.setExpression("Constraints[10]", "Params.sketch14_height")
pocket10 = doc.addObject("PartDesign::Pocket", "Pocket009")
body.addObject(pocket10)
pocket10.Profile = sketch14
pocket10.setExpression("Length", "Params.pocket10_length")

sketch15 = doc.addObject("Sketcher::SketchObject", "Sketch014")
body.addObject(sketch15)
sketch15.AttachmentSupport = (doc.XY_Plane, [""])
sketch15.MapMode = "FlatFace"
sketch15.AttachmentOffset = App.Placement(V(0, 0, 4.5), App.Rotation())
sketch15.addGeometry(Part.LineSegment(V(3.5, 2.8, 0), V(0.3, 2.8, 0)), False)
sketch15.addGeometry(Part.LineSegment(V(0.3, 2.8, 0), V(-1.3, 0, 0)), False)
sketch15.addGeometry(Part.LineSegment(V(-1.3, 0, 0), V(0.3, -2.8, 0)), False)
sketch15.addGeometry(Part.LineSegment(V(0.3, -2.8, 0), V(3.5, -2.8, 0)), False)
sketch15.addGeometry(Part.LineSegment(V(3.5, -2.8, 0), V(5.1, 0, 0)), False)
sketch15.addGeometry(Part.LineSegment(V(5.1, 0, 0), V(3.5, 2.8, 0)), False)
sketch15.addGeometry(Part.Circle(V(1.9, 0, 0), V(0, 0, 1), 1.6), False)
sketch15.addConstraint(Sketcher.Constraint("Coincident", 0, 2, 1, 1))
sketch15.addConstraint(Sketcher.Constraint("Coincident", 1, 2, 2, 1))
sketch15.addConstraint(Sketcher.Constraint("Coincident", 2, 2, 3, 1))
sketch15.addConstraint(Sketcher.Constraint("Coincident", 3, 2, 4, 1))
sketch15.addConstraint(Sketcher.Constraint("Coincident", 4, 2, 5, 1))
sketch15.addConstraint(Sketcher.Constraint("Coincident", 5, 2, 0, 1))
sketch15.addConstraint(Sketcher.Constraint("Horizontal", 0))
sketch15.addConstraint(Sketcher.Constraint("Horizontal", 3))
sketch15.addConstraint(Sketcher.Constraint("Symmetric", 0, 2, 2, 2, -1))
sketch15.addConstraint(Sketcher.Constraint("PointOnObject", 6, 3, -1))
sketch15.addConstraint(Sketcher.Constraint("PointOnObject", 1, 2, -1))
sketch15.addConstraint(Sketcher.Constraint("PointOnObject", 4, 2, -1))
sketch15.addConstraint(Sketcher.Constraint("Parallel", 1, 4))
sketch15.addConstraint(Sketcher.Constraint("Parallel", 2, 5))
sketch15.addConstraint(Sketcher.Constraint("Diameter", 6, Q("3.2 mm")))
sketch15.addConstraint(Sketcher.Constraint("Angle", 1, Q("-119.999996 deg")))
sketch15.addConstraint(Sketcher.Constraint("DistanceY", 2, 2, 0, 2, Q("5.5 mm")))
sketch15.addConstraint(Sketcher.Constraint("DistanceX", -1, 1, 6, 3, Q("1.905 mm")))
sketch15.addConstraint(Sketcher.Constraint("DistanceX", 0, 2, 0, 1, Q("3.175426 mm")))
sketch15.addConstraint(Sketcher.Constraint("DistanceX", -1, 1, 0, 2, Q("0.317287 mm")))
sketch15.setExpression("Constraints[14]", "Params.sketch15_diameter")
pad5 = doc.addObject("PartDesign::Pad", "Pad004")
body.addObject(pad5)
pad5.Profile = sketch15
pad5.setExpression("Length", "Params.pad5_length")

sketch16 = doc.addObject("Sketcher::SketchObject", "Sketch015")
body.addObject(sketch16)
sketch16.AttachmentSupport = (doc.XY_Plane, [""])
sketch16.MapMode = "FlatFace"
sketch16.AttachmentOffset = App.Placement(V(0, 0, 5.5), App.Rotation())
sketch16.addGeometry(Part.LineSegment(V(3.5, 2.8, 0), V(0.3, 2.8, 0)), False)
sketch16.addGeometry(Part.LineSegment(V(0.3, 2.8, 0), V(-1.3, 0, 0)), False)
sketch16.addGeometry(Part.LineSegment(V(-1.3, 0, 0), V(0.3, -2.8, 0)), False)
sketch16.addGeometry(Part.LineSegment(V(0.3, -2.8, 0), V(3.5, -2.8, 0)), False)
sketch16.addGeometry(Part.LineSegment(V(3.5, -2.8, 0), V(5.1, 0, 0)), False)
sketch16.addGeometry(Part.LineSegment(V(5.1, 0, 0), V(3.5, 2.8, 0)), False)
sketch16.addGeometry(Part.Circle(V(1.9, 0, 0), V(0, 0, 1), 1.6), False)
sketch16.addConstraint(Sketcher.Constraint("Coincident", 0, 2, 1, 1))
sketch16.addConstraint(Sketcher.Constraint("Coincident", 1, 2, 2, 1))
sketch16.addConstraint(Sketcher.Constraint("Coincident", 2, 2, 3, 1))
sketch16.addConstraint(Sketcher.Constraint("Coincident", 3, 2, 4, 1))
sketch16.addConstraint(Sketcher.Constraint("Coincident", 4, 2, 5, 1))
sketch16.addConstraint(Sketcher.Constraint("Coincident", 5, 2, 0, 1))
sketch16.addConstraint(Sketcher.Constraint("Horizontal", 0))
sketch16.addConstraint(Sketcher.Constraint("Horizontal", 3))
sketch16.addConstraint(Sketcher.Constraint("Symmetric", 0, 2, 2, 2, -1))
sketch16.addConstraint(Sketcher.Constraint("PointOnObject", 6, 3, -1))
sketch16.addConstraint(Sketcher.Constraint("PointOnObject", 1, 2, -1))
sketch16.addConstraint(Sketcher.Constraint("PointOnObject", 4, 2, -1))
sketch16.addConstraint(Sketcher.Constraint("Parallel", 1, 4))
sketch16.addConstraint(Sketcher.Constraint("Parallel", 2, 5))
sketch16.addConstraint(Sketcher.Constraint("Diameter", 6, Q("3.2 mm")))
sketch16.addConstraint(Sketcher.Constraint("Angle", 1, Q("-119.999996 deg")))
sketch16.addConstraint(Sketcher.Constraint("DistanceY", 2, 2, 0, 2, Q("5.5 mm")))
sketch16.addConstraint(Sketcher.Constraint("DistanceX", -1, 1, 6, 3, Q("1.905 mm")))
sketch16.addConstraint(Sketcher.Constraint("DistanceX", 0, 2, 0, 1, Q("3.175426 mm")))
sketch16.addConstraint(Sketcher.Constraint("DistanceX", -1, 1, 0, 2, Q("0.317287 mm")))
sketch16.setExpression("Constraints[14]", "Params.sketch16_diameter")
pocket11 = doc.addObject("PartDesign::Pocket", "Pocket010")
body.addObject(pocket11)
pocket11.Profile = sketch16
pocket11.setExpression("Length", "Params.pocket11_length")
body2 = doc.addObject("PartDesign::Body", "Body001")
doc.recompute()

body.Placement = App.Placement(V(0, 0, 0), App.Rotation(V(1, 0, 0), 180))
boolean = doc.addObject("PartDesign::Boolean", "Boolean")
body2.addObject(boolean)
boolean.Type = "Fuse"
boolean.addObjects([body])

doc.recompute()
